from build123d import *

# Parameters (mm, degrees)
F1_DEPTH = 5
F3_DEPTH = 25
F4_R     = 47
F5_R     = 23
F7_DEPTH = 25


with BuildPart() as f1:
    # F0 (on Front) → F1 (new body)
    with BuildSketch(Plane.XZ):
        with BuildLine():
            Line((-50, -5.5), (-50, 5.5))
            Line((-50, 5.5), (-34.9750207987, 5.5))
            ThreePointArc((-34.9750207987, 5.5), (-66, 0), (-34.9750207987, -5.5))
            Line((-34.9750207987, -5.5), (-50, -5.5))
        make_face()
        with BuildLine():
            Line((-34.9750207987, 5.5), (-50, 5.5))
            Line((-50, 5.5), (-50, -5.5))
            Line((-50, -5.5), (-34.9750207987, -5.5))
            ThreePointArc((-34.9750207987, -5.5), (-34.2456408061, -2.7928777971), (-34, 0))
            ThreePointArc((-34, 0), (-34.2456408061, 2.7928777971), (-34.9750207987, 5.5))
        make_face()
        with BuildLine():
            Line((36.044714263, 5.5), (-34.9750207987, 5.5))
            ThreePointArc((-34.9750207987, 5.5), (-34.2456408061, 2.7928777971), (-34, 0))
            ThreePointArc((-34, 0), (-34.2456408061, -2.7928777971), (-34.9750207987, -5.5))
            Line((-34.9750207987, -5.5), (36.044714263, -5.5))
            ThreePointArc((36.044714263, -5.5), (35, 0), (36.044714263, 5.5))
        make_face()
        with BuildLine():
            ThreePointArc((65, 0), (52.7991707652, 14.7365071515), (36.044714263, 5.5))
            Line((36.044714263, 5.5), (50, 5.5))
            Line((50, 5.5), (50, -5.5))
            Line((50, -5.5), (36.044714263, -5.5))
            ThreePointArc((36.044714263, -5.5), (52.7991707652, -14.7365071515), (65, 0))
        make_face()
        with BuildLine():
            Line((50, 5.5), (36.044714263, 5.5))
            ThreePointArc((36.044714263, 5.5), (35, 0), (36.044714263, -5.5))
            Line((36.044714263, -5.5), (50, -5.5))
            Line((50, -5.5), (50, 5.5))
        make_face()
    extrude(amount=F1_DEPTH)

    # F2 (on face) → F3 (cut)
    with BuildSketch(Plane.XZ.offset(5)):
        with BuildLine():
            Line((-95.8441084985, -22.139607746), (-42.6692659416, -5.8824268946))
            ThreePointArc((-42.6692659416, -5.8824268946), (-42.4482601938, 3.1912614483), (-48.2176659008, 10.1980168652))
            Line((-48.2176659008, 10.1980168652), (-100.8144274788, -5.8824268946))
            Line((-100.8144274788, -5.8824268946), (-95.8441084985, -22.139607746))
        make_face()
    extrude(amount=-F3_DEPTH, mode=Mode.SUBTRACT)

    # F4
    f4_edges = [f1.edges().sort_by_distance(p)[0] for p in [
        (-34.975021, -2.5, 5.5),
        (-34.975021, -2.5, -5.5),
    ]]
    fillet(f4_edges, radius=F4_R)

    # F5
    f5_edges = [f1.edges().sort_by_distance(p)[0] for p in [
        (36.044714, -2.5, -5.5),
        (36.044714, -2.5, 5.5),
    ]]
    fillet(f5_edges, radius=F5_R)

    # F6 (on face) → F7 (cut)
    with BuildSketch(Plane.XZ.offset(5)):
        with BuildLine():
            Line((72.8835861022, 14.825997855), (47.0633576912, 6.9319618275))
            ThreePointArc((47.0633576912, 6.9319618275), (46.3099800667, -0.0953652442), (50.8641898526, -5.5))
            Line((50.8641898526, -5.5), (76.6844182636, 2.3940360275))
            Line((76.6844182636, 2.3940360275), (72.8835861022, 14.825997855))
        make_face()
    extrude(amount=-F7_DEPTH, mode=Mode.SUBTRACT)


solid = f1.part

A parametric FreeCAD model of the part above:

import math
import FreeCAD as App
import Part
import Sketcher
Q = App.Units.Quantity


def edges_at(feature, points):
    """Names of the edges that pass closest to the given points."""
    edges = feature.Shape.Edges
    near = lambda p: min(range(len(edges)), key=lambda i: edges[i].distToShape(Part.Vertex(*p))[0])
    return sorted({f"Edge{near(p) + 1}" for p in points})

doc = App.newDocument("Part")
body = doc.addObject("PartDesign::Body", "Body")

sketch1 = body.newObject("Sketcher::SketchObject", "Sketch")
sketch1.AttachmentSupport = (doc.getObject("XZ_Plane"), [""])
sketch1.MapMode = "FlatFace"
sketch1.addGeometry([
    Part.ArcOfCircle(Part.Circle(App.Vector(-50, 0, 0), App.Vector(0, 0, 1), 16), math.radians(20), math.radians(340)),
    Part.LineSegment(App.Vector(-35, -6, 0), App.Vector(36, -6, 0)),
    Part.ArcOfCircle(Part.Circle(App.Vector(50, 0, 0), App.Vector(0, 0, 1), 15), math.radians(-158), math.radians(0)),
    Part.ArcOfCircle(Part.Circle(App.Vector(50, 0, 0), App.Vector(0, 0, 1), 15), math.radians(0), math.radians(158)),
    Part.LineSegment(App.Vector(36, 6, 0), App.Vector(-35, 6, 0)),
], False)
sketch1.addConstraint([
    Sketcher.Constraint("Coincident", 0, 2, 1, 1),
    Sketcher.Constraint("Coincident", 1, 2, 2, 1),
    Sketcher.Constraint("Tangent", 2, 2, 3, 1),
    Sketcher.Constraint("Coincident", 3, 2, 4, 1),
    Sketcher.Constraint("Coincident", 4, 2, 0, 1),
    Sketcher.Constraint("Horizontal", 1),
    Sketcher.Constraint("Horizontal", 4),
    Sketcher.Constraint("Equal", 2, 3),
    Sketcher.Constraint("Symmetric", 0, 3, 2, 3, -1, 1),
    Sketcher.Constraint("Symmetric", 1, 2, 3, 2, -1),
    Sketcher.Constraint("PointOnObject", 2, 2, -1),
    Sketcher.Constraint("Radius", 0, Q("16 mm")),
    Sketcher.Constraint("Radius", 2, Q("15 mm")),
    Sketcher.Constraint("DistanceX", 0, 3, -1, 1, Q("50 mm")),
    Sketcher.Constraint("DistanceY", 1, 2, 3, 2, Q("11 mm")),
])
pad1 = body.newObject("PartDesign::Pad", "Pad")
pad1.Profile = sketch1
pad1.Length = 5

sketch2 = body.newObject("Sketcher::SketchObject", "Sketch001")
sketch2.AttachmentSupport = (doc.getObject("XZ_Plane"), [""])
sketch2.MapMode = "FlatFace"
sketch2.AttachmentOffset = App.Placement(App.Vector(0, 0, 5), App.Rotation())
sketch2.addGeometry([
    Part.LineSegment(App.Vector(-96, -22, 0), App.Vector(-43, -6, 0)),
    Part.ArcOfCircle(Part.Circle(App.Vector(-55, -1, 0), App.Vector(0, 0, 1), 13), math.radians(-22), math.radians(60)),
    Part.LineSegment(App.Vector(-48, 10, 0), App.Vector(-101, -6, 0)),
    Part.LineSegment(App.Vector(-101, -6, 0), App.Vector(-96, -22, 0)),
], False)
sketch2.addConstraint([
    Sketcher.Constraint("Coincident", 0, 2, 1, 1),
    Sketcher.Constraint("Coincident", 1, 2, 2, 1),
    Sketcher.Constraint("Coincident", 2, 2, 3, 1),
    Sketcher.Constraint("Coincident", 3, 2, 0, 1),
    Sketcher.Constraint("Parallel", 0, 2),
    Sketcher.Constraint("Perpendicular", 2, 3),
    Sketcher.Constraint("Horizontal", 0, 2, 2, 2),
    Sketcher.Constraint("Radius", 1, Q("13 mm")),
    Sketcher.Constraint("Angle", 0, Q("17 deg")),
    Sketcher.Constraint("Distance", 2, Q("55 mm")),
    Sketcher.Constraint("Distance", 3, Q("17 mm")),
    Sketcher.Constraint("DistanceX", 3, 2, -1, 1, Q("95.844108 mm")),
    Sketcher.Constraint("DistanceY", 1, 3, -1, 1, Q("1.048953 mm")),
])
pocket1 = body.newObject("PartDesign::Pocket", "Pocket")
pocket1.Profile = sketch2
pocket1.Length = 25
doc.recompute()

fillet = body.newObject("PartDesign::Fillet", "Fillet")
fillet.Base = (pocket1, edges_at(pocket1, [(-34.975, -2.5, 5.5), (-34.975, -2.5, -5.5)]))
fillet.Radius = 47
doc.recompute()

fillet2 = body.newObject("PartDesign::Fillet", "Fillet001")
fillet2.Base = (fillet, edges_at(fillet, [(36.045, -2.5, -5.5), (36.045, -2.5, 5.5)]))
fillet2.Radius = 23

sketch3 = body.newObject("Sketcher::SketchObject", "Sketch002")
sketch3.AttachmentSupport = (doc.getObject("XZ_Plane"), [""])
sketch3.MapMode = "FlatFace"
sketch3.AttachmentOffset = App.Placement(App.Vector(0, 0, 5), App.Rotation())
sketch3.addGeometry([
    Part.LineSegment(App.Vector(73, 15, 0), App.Vector(47, 7, 0)),
    Part.ArcOfCircle(Part.Circle(App.Vector(55, 3, 0), App.Vector(0, 0, 1), 9), math.radians(151), math.radians(243)),
    Part.LineSegment(App.Vector(51, -6, 0), App.Vector(77, 2, 0)),
    Part.LineSegment(App.Vector(77, 2, 0), App.Vector(73, 15, 0)),
], False)
sketch3.addConstraint([
    Sketcher.Constraint("Coincident", 0, 2, 1, 1),
    Sketcher.Constraint("Coincident", 1, 2, 2, 1),
    Sketcher.Constraint("Coincident", 2, 2, 3, 1),
    Sketcher.Constraint("Coincident", 3, 2, 0, 1),
    Sketcher.Constraint("Parallel", 0, 2),
    Sketcher.Constraint("Perpendicular", 2, 3),
    Sketcher.Constraint("Equal", 0, 2),
    Sketcher.Constraint("Radius", 1, Q("9 mm")),
    Sketcher.Constraint("Angle", 0, Q("-163 deg")),
    Sketcher.Constraint("Distance", 0, Q("27 mm")),
    Sketcher.Constraint("Distance", 3, Q("13 mm")),
    Sketcher.Constraint("DistanceY", 1, 2, -1, 1, Q("5.5 mm")),
    Sketcher.Constraint("DistanceX", -1, 1, 1, 2, Q("50.86419 mm")),
])
pocket2 = body.newObject("PartDesign::Pocket", "Pocket001")
pocket2.Profile = sketch3
pocket2.Length = 25

doc.recompute()
